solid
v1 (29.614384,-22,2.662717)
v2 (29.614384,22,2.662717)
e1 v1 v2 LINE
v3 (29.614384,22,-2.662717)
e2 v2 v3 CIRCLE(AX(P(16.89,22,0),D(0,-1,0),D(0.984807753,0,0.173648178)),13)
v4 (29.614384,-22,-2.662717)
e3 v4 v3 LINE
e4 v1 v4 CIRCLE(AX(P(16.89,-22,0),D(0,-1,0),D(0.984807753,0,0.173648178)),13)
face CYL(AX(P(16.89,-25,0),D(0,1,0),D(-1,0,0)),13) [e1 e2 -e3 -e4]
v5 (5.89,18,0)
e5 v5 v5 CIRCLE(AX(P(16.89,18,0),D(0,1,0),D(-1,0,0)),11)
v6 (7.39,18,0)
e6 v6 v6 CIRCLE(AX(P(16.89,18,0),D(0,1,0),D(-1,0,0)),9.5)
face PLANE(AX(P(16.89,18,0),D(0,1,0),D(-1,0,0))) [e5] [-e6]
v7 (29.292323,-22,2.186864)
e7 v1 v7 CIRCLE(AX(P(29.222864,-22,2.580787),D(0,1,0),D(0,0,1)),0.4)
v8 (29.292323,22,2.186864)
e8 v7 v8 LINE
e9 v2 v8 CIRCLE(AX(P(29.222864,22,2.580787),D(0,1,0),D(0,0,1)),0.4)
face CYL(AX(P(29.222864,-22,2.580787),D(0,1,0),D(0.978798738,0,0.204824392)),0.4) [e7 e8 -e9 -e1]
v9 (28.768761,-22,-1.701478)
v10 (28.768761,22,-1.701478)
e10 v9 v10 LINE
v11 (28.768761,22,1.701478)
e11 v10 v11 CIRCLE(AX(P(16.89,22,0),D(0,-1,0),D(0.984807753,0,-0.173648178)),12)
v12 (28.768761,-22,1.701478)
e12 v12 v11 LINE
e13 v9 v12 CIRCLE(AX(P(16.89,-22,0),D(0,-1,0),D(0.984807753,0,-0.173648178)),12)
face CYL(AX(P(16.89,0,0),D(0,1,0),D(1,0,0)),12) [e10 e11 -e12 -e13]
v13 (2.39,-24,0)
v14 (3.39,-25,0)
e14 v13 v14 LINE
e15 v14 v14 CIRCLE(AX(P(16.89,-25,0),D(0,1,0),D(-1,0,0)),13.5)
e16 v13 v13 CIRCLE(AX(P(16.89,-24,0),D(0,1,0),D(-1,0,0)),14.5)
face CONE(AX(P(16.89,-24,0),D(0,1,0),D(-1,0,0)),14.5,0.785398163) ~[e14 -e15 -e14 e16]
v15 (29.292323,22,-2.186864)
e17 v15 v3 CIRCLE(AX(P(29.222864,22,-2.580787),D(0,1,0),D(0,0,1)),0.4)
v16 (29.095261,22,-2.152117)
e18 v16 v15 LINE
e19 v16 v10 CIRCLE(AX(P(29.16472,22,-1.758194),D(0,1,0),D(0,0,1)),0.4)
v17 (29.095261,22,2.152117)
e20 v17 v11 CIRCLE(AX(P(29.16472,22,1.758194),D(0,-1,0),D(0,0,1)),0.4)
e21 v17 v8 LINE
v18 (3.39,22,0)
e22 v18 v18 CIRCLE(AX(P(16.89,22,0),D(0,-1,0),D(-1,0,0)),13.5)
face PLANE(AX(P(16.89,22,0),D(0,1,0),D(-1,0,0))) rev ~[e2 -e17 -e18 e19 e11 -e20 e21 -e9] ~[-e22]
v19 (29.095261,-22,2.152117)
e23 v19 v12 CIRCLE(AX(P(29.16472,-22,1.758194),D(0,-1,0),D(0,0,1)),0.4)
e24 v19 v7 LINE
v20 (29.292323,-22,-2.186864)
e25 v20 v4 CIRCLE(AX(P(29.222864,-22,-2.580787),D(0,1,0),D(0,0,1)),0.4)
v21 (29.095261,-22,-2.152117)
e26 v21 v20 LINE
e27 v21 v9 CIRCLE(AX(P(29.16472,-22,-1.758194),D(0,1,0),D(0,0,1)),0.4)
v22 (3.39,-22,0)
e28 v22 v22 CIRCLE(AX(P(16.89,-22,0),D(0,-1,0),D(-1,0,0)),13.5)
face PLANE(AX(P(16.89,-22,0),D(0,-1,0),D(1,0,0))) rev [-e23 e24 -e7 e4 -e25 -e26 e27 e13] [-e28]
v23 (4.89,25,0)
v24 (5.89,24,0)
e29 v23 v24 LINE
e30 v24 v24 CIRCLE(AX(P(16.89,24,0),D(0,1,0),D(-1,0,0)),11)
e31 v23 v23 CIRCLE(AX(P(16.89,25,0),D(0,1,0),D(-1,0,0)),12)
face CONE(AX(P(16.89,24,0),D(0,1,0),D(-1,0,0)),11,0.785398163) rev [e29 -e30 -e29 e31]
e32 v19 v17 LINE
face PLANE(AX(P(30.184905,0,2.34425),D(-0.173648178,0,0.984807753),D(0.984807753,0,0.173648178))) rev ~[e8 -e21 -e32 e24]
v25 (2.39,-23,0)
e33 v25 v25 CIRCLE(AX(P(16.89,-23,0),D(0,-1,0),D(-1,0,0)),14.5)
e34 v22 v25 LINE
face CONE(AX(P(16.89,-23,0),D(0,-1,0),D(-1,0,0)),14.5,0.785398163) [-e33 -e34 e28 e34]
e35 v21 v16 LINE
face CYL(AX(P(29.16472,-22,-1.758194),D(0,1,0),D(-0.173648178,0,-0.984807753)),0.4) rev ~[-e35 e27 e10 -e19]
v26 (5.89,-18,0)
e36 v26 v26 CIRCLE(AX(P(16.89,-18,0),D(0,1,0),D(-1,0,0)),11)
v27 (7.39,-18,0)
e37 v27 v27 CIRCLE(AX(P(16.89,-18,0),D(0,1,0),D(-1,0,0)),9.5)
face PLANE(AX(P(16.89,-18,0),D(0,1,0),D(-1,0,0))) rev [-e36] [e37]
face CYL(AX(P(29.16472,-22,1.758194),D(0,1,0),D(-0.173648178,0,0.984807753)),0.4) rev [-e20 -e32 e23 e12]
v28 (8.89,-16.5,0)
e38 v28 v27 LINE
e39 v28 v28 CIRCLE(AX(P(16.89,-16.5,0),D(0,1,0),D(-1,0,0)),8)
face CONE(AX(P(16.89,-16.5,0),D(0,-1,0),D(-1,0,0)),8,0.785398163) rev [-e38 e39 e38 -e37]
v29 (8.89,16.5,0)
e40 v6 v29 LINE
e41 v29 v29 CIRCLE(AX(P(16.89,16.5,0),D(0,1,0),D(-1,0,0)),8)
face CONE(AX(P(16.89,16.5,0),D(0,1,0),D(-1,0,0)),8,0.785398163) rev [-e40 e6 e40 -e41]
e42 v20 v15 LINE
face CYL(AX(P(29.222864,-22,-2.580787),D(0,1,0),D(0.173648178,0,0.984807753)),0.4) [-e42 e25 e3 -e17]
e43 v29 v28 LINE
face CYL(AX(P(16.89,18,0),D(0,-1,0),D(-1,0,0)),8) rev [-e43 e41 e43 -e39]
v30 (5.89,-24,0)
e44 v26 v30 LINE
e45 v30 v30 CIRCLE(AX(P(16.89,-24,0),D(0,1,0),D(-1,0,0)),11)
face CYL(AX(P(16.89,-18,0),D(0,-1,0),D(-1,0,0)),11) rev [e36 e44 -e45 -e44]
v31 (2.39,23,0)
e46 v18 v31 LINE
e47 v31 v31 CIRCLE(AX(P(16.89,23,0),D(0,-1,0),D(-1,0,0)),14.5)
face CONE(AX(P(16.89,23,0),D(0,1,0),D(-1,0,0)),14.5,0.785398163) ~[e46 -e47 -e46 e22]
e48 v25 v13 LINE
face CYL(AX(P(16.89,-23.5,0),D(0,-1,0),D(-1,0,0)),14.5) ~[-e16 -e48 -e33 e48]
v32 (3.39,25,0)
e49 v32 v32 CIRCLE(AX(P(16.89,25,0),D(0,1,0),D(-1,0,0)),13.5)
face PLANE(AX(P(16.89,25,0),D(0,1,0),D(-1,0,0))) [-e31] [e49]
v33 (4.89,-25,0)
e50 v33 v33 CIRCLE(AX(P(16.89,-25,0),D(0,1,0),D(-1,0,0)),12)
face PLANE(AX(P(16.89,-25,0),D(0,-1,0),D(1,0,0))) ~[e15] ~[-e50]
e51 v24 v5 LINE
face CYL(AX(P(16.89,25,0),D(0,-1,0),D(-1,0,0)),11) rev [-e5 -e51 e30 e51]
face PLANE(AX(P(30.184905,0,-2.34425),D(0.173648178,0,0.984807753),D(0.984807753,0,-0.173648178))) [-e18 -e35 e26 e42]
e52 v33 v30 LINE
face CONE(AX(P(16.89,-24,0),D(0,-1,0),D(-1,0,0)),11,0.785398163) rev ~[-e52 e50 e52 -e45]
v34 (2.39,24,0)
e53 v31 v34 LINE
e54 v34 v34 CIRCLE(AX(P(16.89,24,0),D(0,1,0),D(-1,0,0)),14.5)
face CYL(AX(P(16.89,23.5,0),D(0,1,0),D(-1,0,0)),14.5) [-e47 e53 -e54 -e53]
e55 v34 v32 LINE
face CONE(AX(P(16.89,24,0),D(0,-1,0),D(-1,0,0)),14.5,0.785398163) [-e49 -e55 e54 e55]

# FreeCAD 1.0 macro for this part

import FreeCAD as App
import Part
import Sketcher

V = App.Vector
Q = App.Units.Quantity


def edges_at(feature, points):
    """Names of the edges that pass closest to the given points."""
    edges = feature.Shape.Edges
    near = lambda p: min(range(len(edges)), key=lambda i: edges[i].distToShape(Part.Vertex(*p))[0])
    return sorted({f"Edge{near(p) + 1}" for p in points})


def add_polygon(sketch, points):
    """Adds a closed chain of lines whose ends are joined by coincident constraints."""
    first, n = sketch.GeometryCount, len(points)
    for a, b in zip(points, points[1:] + points[:1]):
        sketch.addGeometry(Part.LineSegment(App.Vector(*a, 0), App.Vector(*b, 0)), False)
    for i in range(n):
        sketch.addConstraint(Sketcher.Constraint("Coincident", first + i, 2, first + (i + 1) % n, 1))

doc = App.newDocument("Part")
body = doc.addObject("PartDesign::Body", "Body")

# Sketch on XY plane
sketch1 = body.newObject("Sketcher::SketchObject", "Sketch")
sketch1.AttachmentSupport = (doc.getObject("XY_Plane"), [""])
sketch1.MapMode = "FlatFace"
add_polygon(sketch1, [(-13, 25), (-13, -25), (-11, -25), (-11, -18), (-8, -18), (-8, 18), (-11, 18), (-11, 25)])  # lines 0-7
sketch1.addConstraint(Sketcher.Constraint("Vertical", 0))
sketch1.addConstraint(Sketcher.Constraint("Horizontal", 1))
sketch1.addConstraint(Sketcher.Constraint("Vertical", 2))
sketch1.addConstraint(Sketcher.Constraint("Horizontal", 3))
sketch1.addConstraint(Sketcher.Constraint("Vertical", 4))
sketch1.addConstraint(Sketcher.Constraint("Horizontal", 5))
sketch1.addConstraint(Sketcher.Constraint("Vertical", 6))
sketch1.addConstraint(Sketcher.Constraint("Horizontal", 7))
sketch1.addConstraint(Sketcher.Constraint("Symmetric", 2, 2, 5, 2, -1))
sketch1.addConstraint(Sketcher.Constraint("Equal", 2, 6))
sketch1.addConstraint(Sketcher.Constraint("DistanceX", 1, 1, 1, 2, Q("2 mm")))
sketch1.addConstraint(Sketcher.Constraint("DistanceX", 3, 1, 3, 2, Q("3 mm")))
sketch1.addConstraint(Sketcher.Constraint("DistanceY", 0, 2, 0, 1, Q("50 mm")))
sketch1.addConstraint(Sketcher.Constraint("DistanceY", 2, 1, 2, 2, Q("7 mm")))
sketch1.addConstraint(Sketcher.Constraint("DistanceX", 0, 2, -1, 1, Q("13 mm")))
revolution = body.newObject("PartDesign::Revolution", "Revolution")
revolution.Profile = sketch1
revolution.ReferenceAxis = (sketch1, ["V_Axis"])
revolution.Angle = 360
doc.recompute()

chamfer = body.newObject("PartDesign::Chamfer", "Chamfer")
chamfer.Base = (revolution, edges_at(revolution, [(8, -18, 0), (8, 18, 0)]))
chamfer.Size = 1.5

# Sketch on XY plane
sketch2 = body.newObject("Sketcher::SketchObject", "Sketch001")
sketch2.AttachmentSupport = (doc.getObject("XY_Plane"), [""])
sketch2.MapMode = "FlatFace"
add_polygon(sketch2, [(-14.5, 25), (-14.5, 22), (-13, 22), (-13, 25)])  # lines 0-3
sketch2.addConstraint(Sketcher.Constraint("Vertical", 0))
sketch2.addConstraint(Sketcher.Constraint("Horizontal", 1))
sketch2.addConstraint(Sketcher.Constraint("Vertical", 2))
sketch2.addConstraint(Sketcher.Constraint("Horizontal", 3))
sketch2.addConstraint(Sketcher.Constraint("DistanceY", 0, 2, 0, 1, Q("3 mm")))
sketch2.addConstraint(Sketcher.Constraint("DistanceX", 1, 1, 1, 2, Q("1.5 mm")))
sketch2.addConstraint(Sketcher.Constraint("DistanceY", -1, 1, 0, 2, Q("22 mm")))
sketch2.addConstraint(Sketcher.Constraint("DistanceX", 1, 2, -1, 1, Q("13 mm")))
revolution2 = body.newObject("PartDesign::Revolution", "Revolution001")
revolution2.Profile = sketch2
revolution2.ReferenceAxis = (sketch2, ["V_Axis"])
revolution2.Angle = 360
doc.recompute()

mirrored = body.newObject("PartDesign::Mirrored", "Mirrored")
mirrored.Originals = [revolution2]
mirrored.MirrorPlane = (doc.getObject("XZ_Plane"), [""])
body.Tip = mirrored

# Sketch on XY plane
sketch3 = body.newObject("Sketcher::SketchObject", "Sketch002")
sketch3.AttachmentSupport = (doc.getObject("XY_Plane"), [""])
sketch3.MapMode = "FlatFace"
add_polygon(sketch3, [(12, 22), (12, -22), (15, -22), (15, 22)])  # lines 0-3
sketch3.addConstraint(Sketcher.Constraint("Vertical", 0))
sketch3.addConstraint(Sketcher.Constraint("Horizontal", 1))
sketch3.addConstraint(Sketcher.Constraint("Vertical", 2))
sketch3.addConstraint(Sketcher.Constraint("Horizontal", 3))
sketch3.addConstraint(Sketcher.Constraint("DistanceX", 1, 1, 1, 2, Q("3 mm")))
sketch3.addConstraint(Sketcher.Constraint("DistanceY", 0, 2, 0, 1, Q("44 mm")))
sketch3.addConstraint(Sketcher.Constraint("DistanceX", -1, 1, 0, 2, Q("12 mm")))
sketch3.addConstraint(Sketcher.Constraint("DistanceY", 0, 2, -1, 1, Q("22 mm")))
groove = body.newObject("PartDesign::Groove", "Groove")
groove.Profile = sketch3
groove.ReferenceAxis = (sketch3, ["V_Axis"])
groove.Angle = 10

# Sketch on XY plane
sketch4 = body.newObject("Sketcher::SketchObject", "Sketch003")
sketch4.AttachmentSupport = (doc.getObject("XY_Plane"), [""])
sketch4.MapMode = "FlatFace"
add_polygon(sketch4, [(12, 22), (12, -22), (15, -22), (15, 22)])  # lines 0-3
sketch4.addConstraint(Sketcher.Constraint("Vertical", 0))
sketch4.addConstraint(Sketcher.Constraint("Horizontal", 1))
sketch4.addConstraint(Sketcher.Constraint("Vertical", 2))
sketch4.addConstraint(Sketcher.Constraint("Horizontal", 3))
sketch4.addConstraint(Sketcher.Constraint("DistanceX", 1, 1, 1, 2, Q("3 mm")))
sketch4.addConstraint(Sketcher.Constraint("DistanceY", 0, 2, 0, 1, Q("44 mm")))
sketch4.addConstraint(Sketcher.Constraint("DistanceX", -1, 1, 0, 2, Q("12 mm")))
sketch4.addConstraint(Sketcher.Constraint("DistanceY", 0, 2, -1, 1, Q("22 mm")))
groove2 = body.newObject("PartDesign::Groove", "Groove001")
groove2.Profile = sketch4
groove2.ReferenceAxis = (sketch4, ["V_Axis"])
groove2.Angle = 10
groove2.Reversed = True
doc.recompute()

fillet = body.newObject("PartDesign::Fillet", "Fillet")
fillet.Base = (groove2, edges_at(groove2, [
    (12.803, 0, 2.257),
    (12.803, 0, -2.257),
    (11.818, 0, -2.084),
    (11.818, 0, 2.084),
]))
fillet.Radius = 0.4
doc.recompute()

chamfer2 = body.newObject("PartDesign::Chamfer", "Chamfer001")
chamfer2.Base = (fillet, edges_at(fillet, [
    (14.5, 25, 0),
    (14.5, -25, 0),
    (11, 25, 0),
    (11, -25, 0),
    (14.5, 22, 0),
    (14.5, -22, 0),
]))
chamfer2.Size = 1
body2 = doc.addObject("PartDesign::Body", "Body001")
doc.recompute()

body.Placement = App.Placement(V(16.89, 0, 0), App.Rotation(V(0, 0, 1), 0))
boolean = body2.newObject("PartDesign::Boolean", "Boolean")
boolean.Type = "Fuse"
boolean.addObjects([body])

doc.recompute()
